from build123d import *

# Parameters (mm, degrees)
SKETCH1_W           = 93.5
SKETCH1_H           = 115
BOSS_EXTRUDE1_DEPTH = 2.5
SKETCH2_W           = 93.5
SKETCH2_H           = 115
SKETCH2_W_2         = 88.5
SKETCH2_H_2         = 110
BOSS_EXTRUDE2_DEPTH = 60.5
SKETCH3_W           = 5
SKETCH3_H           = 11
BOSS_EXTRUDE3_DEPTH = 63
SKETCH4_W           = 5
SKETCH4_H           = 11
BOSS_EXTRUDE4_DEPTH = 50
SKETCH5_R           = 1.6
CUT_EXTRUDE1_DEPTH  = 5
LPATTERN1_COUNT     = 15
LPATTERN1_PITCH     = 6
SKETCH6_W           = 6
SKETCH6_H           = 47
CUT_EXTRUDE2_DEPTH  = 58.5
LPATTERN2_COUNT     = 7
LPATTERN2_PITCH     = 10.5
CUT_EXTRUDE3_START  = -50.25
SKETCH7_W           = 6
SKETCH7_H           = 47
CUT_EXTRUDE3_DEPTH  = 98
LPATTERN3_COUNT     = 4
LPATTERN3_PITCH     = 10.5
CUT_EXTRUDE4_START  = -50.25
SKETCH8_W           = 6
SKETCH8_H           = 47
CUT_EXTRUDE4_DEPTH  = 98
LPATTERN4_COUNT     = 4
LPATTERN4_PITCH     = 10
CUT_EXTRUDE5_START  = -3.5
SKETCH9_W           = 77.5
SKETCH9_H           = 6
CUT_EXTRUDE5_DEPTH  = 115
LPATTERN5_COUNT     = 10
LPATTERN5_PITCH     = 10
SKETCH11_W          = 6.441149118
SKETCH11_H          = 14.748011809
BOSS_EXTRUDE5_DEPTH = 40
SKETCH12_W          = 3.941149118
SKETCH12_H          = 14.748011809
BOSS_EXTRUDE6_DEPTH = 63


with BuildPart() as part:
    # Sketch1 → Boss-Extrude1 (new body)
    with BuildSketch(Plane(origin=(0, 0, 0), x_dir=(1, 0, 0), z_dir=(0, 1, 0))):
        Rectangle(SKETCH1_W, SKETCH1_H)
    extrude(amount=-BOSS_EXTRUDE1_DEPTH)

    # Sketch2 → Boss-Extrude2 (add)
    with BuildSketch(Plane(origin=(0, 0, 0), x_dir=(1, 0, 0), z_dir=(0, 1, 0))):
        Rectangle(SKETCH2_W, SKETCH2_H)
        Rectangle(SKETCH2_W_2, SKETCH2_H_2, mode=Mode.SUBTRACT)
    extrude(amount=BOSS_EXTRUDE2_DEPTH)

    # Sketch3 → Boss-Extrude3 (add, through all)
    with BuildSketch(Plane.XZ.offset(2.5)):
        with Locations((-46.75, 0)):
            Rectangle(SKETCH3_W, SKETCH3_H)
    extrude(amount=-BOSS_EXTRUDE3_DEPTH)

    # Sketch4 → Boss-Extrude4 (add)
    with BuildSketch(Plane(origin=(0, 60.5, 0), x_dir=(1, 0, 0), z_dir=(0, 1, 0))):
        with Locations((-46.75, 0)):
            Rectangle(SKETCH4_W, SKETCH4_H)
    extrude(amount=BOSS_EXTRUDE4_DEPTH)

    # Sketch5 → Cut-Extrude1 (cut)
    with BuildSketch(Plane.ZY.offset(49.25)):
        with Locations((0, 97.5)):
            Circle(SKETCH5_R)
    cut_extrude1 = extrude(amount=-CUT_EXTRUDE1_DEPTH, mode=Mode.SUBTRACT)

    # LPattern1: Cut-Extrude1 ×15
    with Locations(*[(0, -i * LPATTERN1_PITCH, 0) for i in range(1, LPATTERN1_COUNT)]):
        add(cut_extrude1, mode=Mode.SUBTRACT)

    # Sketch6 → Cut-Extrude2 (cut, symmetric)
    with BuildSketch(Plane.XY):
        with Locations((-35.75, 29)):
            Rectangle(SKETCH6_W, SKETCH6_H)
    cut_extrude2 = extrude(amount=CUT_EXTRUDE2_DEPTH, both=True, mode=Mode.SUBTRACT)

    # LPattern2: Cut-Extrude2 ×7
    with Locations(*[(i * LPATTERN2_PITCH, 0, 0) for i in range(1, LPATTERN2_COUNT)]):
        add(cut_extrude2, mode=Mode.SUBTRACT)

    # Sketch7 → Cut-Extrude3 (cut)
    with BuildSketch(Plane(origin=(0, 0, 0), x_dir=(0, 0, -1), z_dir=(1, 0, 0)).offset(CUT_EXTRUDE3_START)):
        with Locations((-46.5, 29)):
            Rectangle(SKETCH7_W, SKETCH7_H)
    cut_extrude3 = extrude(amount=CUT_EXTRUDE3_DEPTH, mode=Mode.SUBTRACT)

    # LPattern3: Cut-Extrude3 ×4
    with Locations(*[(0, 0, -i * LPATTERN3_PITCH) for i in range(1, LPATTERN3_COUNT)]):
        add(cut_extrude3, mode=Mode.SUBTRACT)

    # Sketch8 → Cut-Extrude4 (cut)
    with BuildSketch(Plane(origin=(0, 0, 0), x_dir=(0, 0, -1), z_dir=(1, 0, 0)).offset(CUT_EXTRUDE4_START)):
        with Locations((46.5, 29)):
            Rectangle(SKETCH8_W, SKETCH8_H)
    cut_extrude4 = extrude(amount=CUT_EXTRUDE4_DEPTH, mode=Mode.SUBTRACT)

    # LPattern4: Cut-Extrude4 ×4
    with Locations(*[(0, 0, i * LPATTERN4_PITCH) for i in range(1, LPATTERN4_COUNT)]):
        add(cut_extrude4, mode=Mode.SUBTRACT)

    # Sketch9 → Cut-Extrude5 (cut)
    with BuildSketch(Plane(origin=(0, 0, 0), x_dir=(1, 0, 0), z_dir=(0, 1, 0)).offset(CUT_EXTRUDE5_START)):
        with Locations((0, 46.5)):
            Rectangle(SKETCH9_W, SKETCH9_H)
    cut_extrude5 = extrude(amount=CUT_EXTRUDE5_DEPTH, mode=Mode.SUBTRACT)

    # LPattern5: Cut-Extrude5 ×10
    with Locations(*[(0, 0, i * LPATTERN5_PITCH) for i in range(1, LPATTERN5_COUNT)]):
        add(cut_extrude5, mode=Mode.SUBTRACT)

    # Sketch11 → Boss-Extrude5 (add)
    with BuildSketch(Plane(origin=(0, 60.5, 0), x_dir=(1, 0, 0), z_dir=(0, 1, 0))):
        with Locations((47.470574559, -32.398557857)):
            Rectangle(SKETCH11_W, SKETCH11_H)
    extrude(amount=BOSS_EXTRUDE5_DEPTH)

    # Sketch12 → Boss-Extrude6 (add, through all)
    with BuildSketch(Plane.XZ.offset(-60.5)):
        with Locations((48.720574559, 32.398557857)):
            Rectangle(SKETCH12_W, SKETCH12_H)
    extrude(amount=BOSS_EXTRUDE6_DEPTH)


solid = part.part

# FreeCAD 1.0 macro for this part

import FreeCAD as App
import Part
import Sketcher
from FreeCAD import Vector


def add_polygon(sketch, points):
    """Adds a closed chain of lines whose ends are joined by coincident constraints."""
    first, n = sketch.GeometryCount, len(points)
    for a, b in zip(points, points[1:] + points[:1]):
        sketch.addGeometry(Part.LineSegment(App.Vector(*a, 0), App.Vector(*b, 0)), False)
    for i in range(n):
        sketch.addConstraint(Sketcher.Constraint("Coincident", first + i, 2, first + (i + 1) % n, 1))

doc = App.newDocument("Part")
body = doc.addObject("PartDesign::Body", "Body")

sketch1 = body.newObject("Sketcher::SketchObject", "Sketch")
sketch1.AttachmentSupport = (doc.getObject("XZ_Plane"), [""])
sketch1.MapMode = "FlatFace"
add_polygon(sketch1, [(-46.75, -57.5), (-46.75, 57.5), (46.75, 57.5), (46.75, -57.5)])
sketch1.addConstraint([
    Sketcher.Constraint("Vertical", 0),
    Sketcher.Constraint("Horizontal", 1),
    Sketcher.Constraint("Vertical", 2),
    Sketcher.Constraint("Horizontal", 3),
    Sketcher.Constraint("Symmetric", 0, 2, 2, 2, -1, 1),
    Sketcher.Constraint("DistanceY", 0, 1, 0, 2, 115.0),
    Sketcher.Constraint("DistanceX", 1, 1, 1, 2, 93.5),
])
pad1 = body.newObject("PartDesign::Pad", "Pad")
pad1.Profile = sketch1
pad1.Length = 2.5

sketch2 = body.newObject("Sketcher::SketchObject", "Sketch001")
sketch2.AttachmentSupport = (doc.getObject("XZ_Plane"), [""])
sketch2.MapMode = "FlatFace"
add_polygon(sketch2, [(-46.75, -57.5), (-46.75, 57.5), (46.75, 57.5), (46.75, -57.5)])
add_polygon(sketch2, [(44.25, 55), (-44.25, 55), (-44.25, -55), (44.25, -55)])
sketch2.addConstraint([
    Sketcher.Constraint("Vertical", 0),
    Sketcher.Constraint("Horizontal", 1),
    Sketcher.Constraint("Vertical", 2),
    Sketcher.Constraint("Horizontal", 3),
    Sketcher.Constraint("Horizontal", 4),
    Sketcher.Constraint("Vertical", 5),
    Sketcher.Constraint("Horizontal", 6),
    Sketcher.Constraint("Vertical", 7),
    Sketcher.Constraint("Symmetric", 0, 2, 2, 2, -1, 1),
    Sketcher.Constraint("Symmetric", 4, 2, 6, 2, -1, 1),
    Sketcher.Constraint("DistanceY", 0, 1, 0, 2, 115.0),
    Sketcher.Constraint("DistanceY", 5, 2, 5, 1, 110.0),
    Sketcher.Constraint("DistanceX", 1, 1, 1, 2, 93.5),
    Sketcher.Constraint("DistanceX", 4, 2, 4, 1, 88.5),
])
pad2 = body.newObject("PartDesign::Pad", "Pad001")
pad2.Profile = sketch2
pad2.Length = 60.5
pad2.Reversed = True

sketch3 = body.newObject("Sketcher::SketchObject", "Sketch002")
sketch3.AttachmentSupport = (doc.getObject("XZ_Plane"), [""])
sketch3.MapMode = "FlatFace"
sketch3.AttachmentOffset = App.Placement(Vector(0, 0, 2.5), App.Rotation())
add_polygon(sketch3, [(-49.25, 5.5), (-49.25, -5.5), (-44.25, -5.5), (-44.25, 5.5)])
sketch3.addConstraint([
    Sketcher.Constraint("Vertical", 0),
    Sketcher.Constraint("Horizontal", 1),
    Sketcher.Constraint("Vertical", 2),
    Sketcher.Constraint("Horizontal", 3),
    Sketcher.Constraint("DistanceX", 1, 1, 1, 2, 5.0),
    Sketcher.Constraint("DistanceY", 0, 2, 0, 1, 11.0),
    Sketcher.Constraint("DistanceY", 0, 2, -1, 1, 5.5),
    Sketcher.Constraint("DistanceX", 0, 2, -1, 1, 49.25),
])
pad3 = body.newObject("PartDesign::Pad", "Pad002")
pad3.Profile = sketch3
pad3.Type = "UpToLast"
pad3.Reversed = True

sketch4 = body.newObject("Sketcher::SketchObject", "Sketch003")
sketch4.AttachmentSupport = (doc.getObject("XZ_Plane"), [""])
sketch4.MapMode = "FlatFace"
sketch4.AttachmentOffset = App.Placement(Vector(0, 0, -60.5), App.Rotation())
add_polygon(sketch4, [(-49.25, -5.5), (-49.25, 5.5), (-44.25, 5.5), (-44.25, -5.5)])
sketch4.addConstraint([
    Sketcher.Constraint("Vertical", 0),
    Sketcher.Constraint("Horizontal", 1),
    Sketcher.Constraint("Vertical", 2),
    Sketcher.Constraint("Horizontal", 3),
    Sketcher.Constraint("DistanceX", 1, 1, 1, 2, 5.0),
    Sketcher.Constraint("DistanceY", 0, 1, 0, 2, 11.0),
    Sketcher.Constraint("DistanceY", -1, 1, 0, 2, 5.5),
    Sketcher.Constraint("DistanceX", 0, 2, -1, 1, 49.25),
])
pad4 = body.newObject("PartDesign::Pad", "Pad003")
pad4.Profile = sketch4
pad4.Length = 50
pad4.Reversed = True

sketch5 = body.newObject("Sketcher::SketchObject", "Sketch004")
sketch5.AttachmentSupport = (doc.getObject("YZ_Plane"), [""])
sketch5.MapMode = "FlatFace"
sketch5.AttachmentOffset = App.Placement(Vector(0, 0, -49.25), App.Rotation())
sketch5.addGeometry(Part.Circle(Vector(97.5, 0, 0), Vector(0, 0, 1), 1.6), False)
sketch5.addConstraint([
    Sketcher.Constraint("PointOnObject", 0, 3, -1),
    Sketcher.Constraint("Diameter", 0, 3.2),
    Sketcher.Constraint("DistanceX", -1, 1, 0, 3, 97.5),
])
pocket1 = body.newObject("PartDesign::Pocket", "Pocket")
pocket1.Profile = sketch5
pocket1.Length = 5
pocket1.Reversed = True
doc.recompute()

linearpattern = body.newObject("PartDesign::LinearPattern", "LinearPattern")
linearpattern.Originals = [pocket1]
linearpattern.Direction = (doc.getObject("Y_Axis"), [""])
linearpattern.Mode = "offset"
linearpattern.Offset = 6
linearpattern.Occurrences = 15
linearpattern.Reversed = True
body.Tip = linearpattern

sketch6 = body.newObject("Sketcher::SketchObject", "Sketch005")
sketch6.AttachmentSupport = (doc.getObject("XY_Plane"), [""])
sketch6.MapMode = "FlatFace"
add_polygon(sketch6, [(-38.75, 52.5), (-38.75, 5.5), (-32.75, 5.5), (-32.75, 52.5)])
sketch6.addConstraint([
    Sketcher.Constraint("Vertical", 0),
    Sketcher.Constraint("Horizontal", 1),
    Sketcher.Constraint("Vertical", 2),
    Sketcher.Constraint("Horizontal", 3),
    Sketcher.Constraint("DistanceX", 1, 1, 1, 2, 6.0),
    Sketcher.Constraint("DistanceY", 0, 2, 0, 1, 47.0),
    Sketcher.Constraint("DistanceY", -1, 1, 0, 2, 5.5),
    Sketcher.Constraint("DistanceX", 0, 2, -1, 1, 38.75),
])
pocket2 = body.newObject("PartDesign::Pocket", "Pocket001")
pocket2.Profile = sketch6
pocket2.Length = 117
pocket2.Midplane = True
doc.recompute()

linearpattern2 = body.newObject("PartDesign::LinearPattern", "LinearPattern001")
linearpattern2.Originals = [pocket2]
linearpattern2.Direction = (doc.getObject("X_Axis"), [""])
linearpattern2.Mode = "offset"
linearpattern2.Offset = 10.5
linearpattern2.Occurrences = 7
body.Tip = linearpattern2

sketch7 = body.newObject("Sketcher::SketchObject", "Sketch006")
sketch7.AttachmentSupport = (doc.getObject("YZ_Plane"), [""])
sketch7.MapMode = "FlatFace"
sketch7.AttachmentOffset = App.Placement(Vector(0, 0, -50.25), App.Rotation())
add_polygon(sketch7, [(52.5, 49.5), (5.5, 49.5), (5.5, 43.5), (52.5, 43.5)])
sketch7.addConstraint([
    Sketcher.Constraint("Horizontal", 0),
    Sketcher.Constraint("Vertical", 1),
    Sketcher.Constraint("Horizontal", 2),
    Sketcher.Constraint("Vertical", 3),
    Sketcher.Constraint("DistanceX", 0, 2, 0, 1, 47.0),
    Sketcher.Constraint("DistanceY", 1, 2, 1, 1, 6.0),
    Sketcher.Constraint("DistanceX", -1, 1, 0, 2, 5.5),
    Sketcher.Constraint("DistanceY", -1, 1, 0, 2, 49.5),
])
pocket3 = body.newObject("PartDesign::Pocket", "Pocket002")
pocket3.Profile = sketch7
pocket3.Length = 98
pocket3.Reversed = True
doc.recompute()

linearpattern3 = body.newObject("PartDesign::LinearPattern", "LinearPattern002")
linearpattern3.Originals = [pocket3]
linearpattern3.Direction = (doc.getObject("Z_Axis"), [""])
linearpattern3.Mode = "offset"
linearpattern3.Offset = 10.5
linearpattern3.Occurrences = 4
linearpattern3.Reversed = True
body.Tip = linearpattern3

sketch8 = body.newObject("Sketcher::SketchObject", "Sketch007")
sketch8.AttachmentSupport = (doc.getObject("YZ_Plane"), [""])
sketch8.MapMode = "FlatFace"
sketch8.AttachmentOffset = App.Placement(Vector(0, 0, -50.25), App.Rotation())
add_polygon(sketch8, [(52.5, -43.5), (5.5, -43.5), (5.5, -49.5), (52.5, -49.5)])
sketch8.addConstraint([
    Sketcher.Constraint("Horizontal", 0),
    Sketcher.Constraint("Vertical", 1),
    Sketcher.Constraint("Horizontal", 2),
    Sketcher.Constraint("Vertical", 3),
    Sketcher.Constraint("DistanceX", 0, 2, 0, 1, 47.0),
    Sketcher.Constraint("DistanceY", 1, 2, 1, 1, 6.0),
    Sketcher.Constraint("DistanceX", -1, 1, 0, 2, 5.5),
    Sketcher.Constraint("DistanceY", 0, 2, -1, 1, 43.5),
])
pocket4 = body.newObject("PartDesign::Pocket", "Pocket003")
pocket4.Profile = sketch8
pocket4.Length = 98
pocket4.Reversed = True
doc.recompute()

linearpattern4 = body.newObject("PartDesign::LinearPattern", "LinearPattern003")
linearpattern4.Originals = [pocket4]
linearpattern4.Direction = (doc.getObject("Z_Axis"), [""])
linearpattern4.Mode = "offset"
linearpattern4.Offset = 10
linearpattern4.Occurrences = 4
body.Tip = linearpattern4

sketch9 = body.newObject("Sketcher::SketchObject", "Sketch008")
sketch9.AttachmentSupport = (doc.getObject("XZ_Plane"), [""])
sketch9.MapMode = "FlatFace"
sketch9.AttachmentOffset = App.Placement(Vector(0, 0, 3.5), App.Rotation())
add_polygon(sketch9, [(-38.75, -49.5), (-38.75, -43.5), (38.75, -43.5), (38.75, -49.5)])
sketch9.addConstraint([
    Sketcher.Constraint("Vertical", 0),
    Sketcher.Constraint("Horizontal", 1),
    Sketcher.Constraint("Vertical", 2),
    Sketcher.Constraint("Horizontal", 3),
    Sketcher.Constraint("DistanceY", 0, 1, 0, 2, 6.0),
    Sketcher.Constraint("DistanceX", 1, 1, 1, 2, 77.5),
    Sketcher.Constraint("DistanceY", 0, 2, -1, 1, 43.5),
    Sketcher.Constraint("DistanceX", 0, 2, -1, 1, 38.75),
])
pocket5 = body.newObject("PartDesign::Pocket", "Pocket004")
pocket5.Profile = sketch9
pocket5.Length = 115
doc.recompute()

linearpattern5 = body.newObject("PartDesign::LinearPattern", "LinearPattern004")
linearpattern5.Originals = [pocket5]
linearpattern5.Direction = (doc.getObject("Z_Axis"), [""])
linearpattern5.Mode = "offset"
linearpattern5.Offset = 10
linearpattern5.Occurrences = 10
body.Tip = linearpattern5

sketch10 = body.newObject("Sketcher::SketchObject", "Sketch009")
sketch10.AttachmentSupport = (doc.getObject("XZ_Plane"), [""])
sketch10.MapMode = "FlatFace"
sketch10.AttachmentOffset = App.Placement(Vector(0, 0, -60.5), App.Rotation())
add_polygon(sketch10, [(44.25, 25.024552), (44.25, 39.772564), (50.691149, 39.772564), (50.691149, 25.024552)])
sketch10.addConstraint([
    Sketcher.Constraint("Vertical", 0),
    Sketcher.Constraint("Horizontal", 1),
    Sketcher.Constraint("Vertical", 2),
    Sketcher.Constraint("Horizontal", 3),
    Sketcher.Constraint("DistanceX", -1, 1, 0, 2, 44.25),
    Sketcher.Constraint("DistanceX", 1, 1, 1, 2, 6.441149),
    Sketcher.Constraint("DistanceY", 0, 1, 0, 2, 14.748012),
    Sketcher.Constraint("DistanceY", -1, 1, 2, 2, 25.024552),
])
pad5 = body.newObject("PartDesign::Pad", "Pad004")
pad5.Profile = sketch10
pad5.Length = 40
pad5.Reversed = True

sketch11 = body.newObject("Sketcher::SketchObject", "Sketch010")
sketch11.AttachmentSupport = (doc.getObject("XZ_Plane"), [""])
sketch11.MapMode = "FlatFace"
sketch11.AttachmentOffset = App.Placement(Vector(0, 0, -60.5), App.Rotation())
add_polygon(sketch11, [(46.75, 39.772564), (46.75, 25.024552), (50.691149, 25.024552), (50.691149, 39.772564)])
sketch11.addConstraint([
    Sketcher.Constraint("Vertical", 0),
    Sketcher.Constraint("Horizontal", 1),
    Sketcher.Constraint("Vertical", 2),
    Sketcher.Constraint("Horizontal", 3),
    Sketcher.Constraint("DistanceX", -1, 1, 0, 2, 46.75),
    Sketcher.Constraint("DistanceX", 1, 1, 1, 2, 3.941149),
    Sketcher.Constraint("DistanceY", 0, 2, 0, 1, 14.748012),
    Sketcher.Constraint("DistanceY", -1, 1, 0, 2, 25.024552),
])
pad6 = body.newObject("PartDesign::Pad", "Pad005")
pad6.Profile = sketch11
pad6.Length = 63

doc.recompute()
